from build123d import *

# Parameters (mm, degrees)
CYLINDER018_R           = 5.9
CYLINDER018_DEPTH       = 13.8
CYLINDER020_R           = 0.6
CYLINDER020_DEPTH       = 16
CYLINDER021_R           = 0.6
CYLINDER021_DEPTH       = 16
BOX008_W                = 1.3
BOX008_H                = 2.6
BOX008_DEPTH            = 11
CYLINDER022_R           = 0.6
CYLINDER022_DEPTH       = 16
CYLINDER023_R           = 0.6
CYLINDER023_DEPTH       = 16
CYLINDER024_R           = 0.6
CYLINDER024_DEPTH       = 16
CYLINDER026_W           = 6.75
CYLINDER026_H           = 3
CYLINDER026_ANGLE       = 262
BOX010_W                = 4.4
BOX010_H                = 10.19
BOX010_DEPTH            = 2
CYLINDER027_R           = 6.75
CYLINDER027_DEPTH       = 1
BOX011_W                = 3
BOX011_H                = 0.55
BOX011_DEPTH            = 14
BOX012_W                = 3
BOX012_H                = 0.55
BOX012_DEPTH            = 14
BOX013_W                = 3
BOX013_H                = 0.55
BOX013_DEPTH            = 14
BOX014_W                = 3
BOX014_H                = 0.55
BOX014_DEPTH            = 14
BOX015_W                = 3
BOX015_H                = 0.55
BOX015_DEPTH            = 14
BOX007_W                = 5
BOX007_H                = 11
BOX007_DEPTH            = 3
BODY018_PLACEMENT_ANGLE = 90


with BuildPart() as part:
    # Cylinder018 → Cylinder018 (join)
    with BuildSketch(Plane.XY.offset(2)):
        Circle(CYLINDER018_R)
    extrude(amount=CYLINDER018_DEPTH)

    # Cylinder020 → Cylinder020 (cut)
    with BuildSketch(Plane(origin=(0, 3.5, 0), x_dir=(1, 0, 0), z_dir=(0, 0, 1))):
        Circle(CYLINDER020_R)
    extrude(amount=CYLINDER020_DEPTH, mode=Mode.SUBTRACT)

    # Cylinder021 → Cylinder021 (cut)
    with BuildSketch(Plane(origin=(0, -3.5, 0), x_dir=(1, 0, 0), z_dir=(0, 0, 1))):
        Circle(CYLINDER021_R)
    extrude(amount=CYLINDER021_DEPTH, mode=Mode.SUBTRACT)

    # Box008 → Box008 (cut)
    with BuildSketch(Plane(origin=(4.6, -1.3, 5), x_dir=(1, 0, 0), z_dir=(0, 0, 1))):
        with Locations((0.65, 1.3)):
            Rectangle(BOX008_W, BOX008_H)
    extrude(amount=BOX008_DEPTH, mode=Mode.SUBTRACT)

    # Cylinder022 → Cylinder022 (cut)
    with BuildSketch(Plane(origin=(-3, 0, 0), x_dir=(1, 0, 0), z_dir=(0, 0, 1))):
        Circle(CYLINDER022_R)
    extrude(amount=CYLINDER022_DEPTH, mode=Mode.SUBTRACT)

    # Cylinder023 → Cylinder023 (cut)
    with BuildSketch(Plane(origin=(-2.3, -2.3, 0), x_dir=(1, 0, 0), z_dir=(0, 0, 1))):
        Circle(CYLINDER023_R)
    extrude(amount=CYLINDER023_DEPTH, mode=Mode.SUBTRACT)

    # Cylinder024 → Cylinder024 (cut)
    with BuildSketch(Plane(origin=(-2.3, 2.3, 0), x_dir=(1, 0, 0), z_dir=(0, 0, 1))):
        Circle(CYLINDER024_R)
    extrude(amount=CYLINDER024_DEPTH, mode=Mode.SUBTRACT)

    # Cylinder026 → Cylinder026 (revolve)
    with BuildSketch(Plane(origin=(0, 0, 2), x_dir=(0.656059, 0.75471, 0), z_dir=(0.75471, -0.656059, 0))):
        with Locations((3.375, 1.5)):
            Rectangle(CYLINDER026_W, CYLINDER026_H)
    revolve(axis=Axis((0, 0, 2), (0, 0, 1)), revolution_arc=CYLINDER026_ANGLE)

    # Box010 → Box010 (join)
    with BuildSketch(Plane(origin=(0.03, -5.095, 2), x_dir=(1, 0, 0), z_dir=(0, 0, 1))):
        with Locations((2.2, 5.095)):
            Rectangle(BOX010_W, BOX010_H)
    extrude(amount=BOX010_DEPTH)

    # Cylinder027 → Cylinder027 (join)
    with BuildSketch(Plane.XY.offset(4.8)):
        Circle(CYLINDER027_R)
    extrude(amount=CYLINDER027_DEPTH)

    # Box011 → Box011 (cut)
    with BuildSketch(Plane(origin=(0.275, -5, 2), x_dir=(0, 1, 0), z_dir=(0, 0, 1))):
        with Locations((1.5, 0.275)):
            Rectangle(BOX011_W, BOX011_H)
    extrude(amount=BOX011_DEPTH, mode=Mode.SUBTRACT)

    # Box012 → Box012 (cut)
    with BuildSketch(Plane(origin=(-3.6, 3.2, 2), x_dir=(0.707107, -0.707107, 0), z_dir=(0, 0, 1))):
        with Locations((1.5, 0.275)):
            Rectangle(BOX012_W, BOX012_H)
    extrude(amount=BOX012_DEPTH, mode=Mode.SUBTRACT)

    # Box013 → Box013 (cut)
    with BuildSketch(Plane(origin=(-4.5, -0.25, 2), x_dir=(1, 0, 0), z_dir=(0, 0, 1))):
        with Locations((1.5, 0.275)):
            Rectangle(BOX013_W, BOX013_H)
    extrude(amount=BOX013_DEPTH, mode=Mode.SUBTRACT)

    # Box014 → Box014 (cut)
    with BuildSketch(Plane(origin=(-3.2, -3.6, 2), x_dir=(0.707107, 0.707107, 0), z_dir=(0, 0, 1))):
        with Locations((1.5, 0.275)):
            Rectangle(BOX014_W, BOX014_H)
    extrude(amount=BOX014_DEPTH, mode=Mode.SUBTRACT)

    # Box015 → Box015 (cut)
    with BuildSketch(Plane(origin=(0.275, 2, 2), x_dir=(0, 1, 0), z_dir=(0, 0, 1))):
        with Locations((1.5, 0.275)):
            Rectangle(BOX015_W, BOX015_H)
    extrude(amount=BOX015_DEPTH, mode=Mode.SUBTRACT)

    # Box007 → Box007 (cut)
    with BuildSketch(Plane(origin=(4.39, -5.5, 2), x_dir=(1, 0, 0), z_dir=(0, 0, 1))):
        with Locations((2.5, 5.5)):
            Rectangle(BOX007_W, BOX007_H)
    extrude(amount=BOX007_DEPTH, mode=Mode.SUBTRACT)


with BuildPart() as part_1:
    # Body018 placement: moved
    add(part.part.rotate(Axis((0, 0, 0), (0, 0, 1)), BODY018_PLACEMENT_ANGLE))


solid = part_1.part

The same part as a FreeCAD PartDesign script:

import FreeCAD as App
import Part
import Sketcher

V = App.Vector
Q = App.Units.Quantity


def add_polygon(sketch, points):
    """Adds a closed chain of lines whose ends are joined by coincident constraints."""
    first, n = sketch.GeometryCount, len(points)
    for a, b in zip(points, points[1:] + points[:1]):
        sketch.addGeometry(Part.LineSegment(App.Vector(*a, 0), App.Vector(*b, 0)), False)
    for i in range(n):
        sketch.addConstraint(Sketcher.Constraint("Coincident", first + i, 2, first + (i + 1) % n, 1))

doc = App.newDocument("Part")
body = doc.addObject("PartDesign::Body", "Body")

sketch1 = body.newObject("Sketcher::SketchObject", "Sketch")
sketch1.AttachmentSupport = (doc.getObject("XY_Plane"), [""])
sketch1.MapMode = "FlatFace"
sketch1.AttachmentOffset = App.Placement(V(0, 0, 2), App.Rotation())
sketch1.addGeometry(Part.Circle(V(0, 0, 0), V(0, 0, 1), 6), False)
sketch1.addConstraint(Sketcher.Constraint("Coincident", 0, 3, -1, 1))
sketch1.addConstraint(Sketcher.Constraint("Diameter", 0, 11.8))
pad1 = body.newObject("PartDesign::Pad", "Pad")
pad1.Profile = sketch1
pad1.Length = 13.8

sketch2 = body.newObject("Sketcher::SketchObject", "Sketch001")
sketch2.AttachmentSupport = (doc.getObject("XY_Plane"), [""])
sketch2.MapMode = "FlatFace"
sketch2.addGeometry(Part.Circle(V(0, 3.5, 0), V(0, 0, 1), 0.6), False)
sketch2.addConstraint(Sketcher.Constraint("PointOnObject", 0, 3, -2))
sketch2.addConstraint(Sketcher.Constraint("Diameter", 0, 1.2))
sketch2.addConstraint(Sketcher.Constraint("DistanceY", -1, 1, 0, 3, 3.5))
pocket1 = body.newObject("PartDesign::Pocket", "Pocket")
pocket1.Profile = sketch2
pocket1.Length = 16
pocket1.Reversed = True

sketch3 = body.newObject("Sketcher::SketchObject", "Sketch002")
sketch3.AttachmentSupport = (doc.getObject("XY_Plane"), [""])
sketch3.MapMode = "FlatFace"
sketch3.addGeometry(Part.Circle(V(0, -3.5, 0), V(0, 0, 1), 0.6), False)
sketch3.addConstraint(Sketcher.Constraint("PointOnObject", 0, 3, -2))
sketch3.addConstraint(Sketcher.Constraint("Diameter", 0, 1.2))
sketch3.addConstraint(Sketcher.Constraint("DistanceY", 0, 3, -1, 1, 3.5))
pocket2 = body.newObject("PartDesign::Pocket", "Pocket001")
pocket2.Profile = sketch3
pocket2.Length = 16
pocket2.Reversed = True

sketch4 = body.newObject("Sketcher::SketchObject", "Sketch003")
sketch4.AttachmentSupport = (doc.getObject("XY_Plane"), [""])
sketch4.MapMode = "FlatFace"
sketch4.AttachmentOffset = App.Placement(V(0, 0, 5), App.Rotation())
add_polygon(sketch4, [(4.6, 1.3), (4.6, -1.3), (5.9, -1.3), (5.9, 1.3)])
sketch4.addConstraint(Sketcher.Constraint("Vertical", 0))
sketch4.addConstraint(Sketcher.Constraint("Horizontal", 1))
sketch4.addConstraint(Sketcher.Constraint("Vertical", 2))
sketch4.addConstraint(Sketcher.Constraint("Horizontal", 3))
sketch4.addConstraint(Sketcher.Constraint("DistanceX", 1, 1, 1, 2, 1.3))
sketch4.addConstraint(Sketcher.Constraint("DistanceY", 0, 2, 0, 1, 2.6))
sketch4.addConstraint(Sketcher.Constraint("DistanceX", -1, 1, 0, 2, 4.6))
sketch4.addConstraint(Sketcher.Constraint("DistanceY", 0, 2, -1, 1, 1.3))
pocket3 = body.newObject("PartDesign::Pocket", "Pocket002")
pocket3.Profile = sketch4
pocket3.Length = 11
pocket3.Reversed = True

sketch5 = body.newObject("Sketcher::SketchObject", "Sketch004")
sketch5.AttachmentSupport = (doc.getObject("XY_Plane"), [""])
sketch5.MapMode = "FlatFace"
sketch5.addGeometry(Part.Circle(V(-3, 0, 0), V(0, 0, 1), 0.6), False)
sketch5.addConstraint(Sketcher.Constraint("PointOnObject", 0, 3, -1))
sketch5.addConstraint(Sketcher.Constraint("Diameter", 0, 1.2))
sketch5.addConstraint(Sketcher.Constraint("DistanceX", 0, 3, -1, 1, 3.0))
pocket4 = body.newObject("PartDesign::Pocket", "Pocket003")
pocket4.Profile = sketch5
pocket4.Length = 16
pocket4.Reversed = True

sketch6 = body.newObject("Sketcher::SketchObject", "Sketch005")
sketch6.AttachmentSupport = (doc.getObject("XY_Plane"), [""])
sketch6.MapMode = "FlatFace"
sketch6.addGeometry(Part.Circle(V(-2.3, -2.3, 0), V(0, 0, 1), 0.6), False)
sketch6.addConstraint(Sketcher.Constraint("Diameter", 0, 1.2))
sketch6.addConstraint(Sketcher.Constraint("DistanceX", 0, 3, -1, 1, 2.3))
sketch6.addConstraint(Sketcher.Constraint("DistanceY", 0, 3, -1, 1, 2.3))
pocket5 = body.newObject("PartDesign::Pocket", "Pocket004")
pocket5.Profile = sketch6
pocket5.Length = 16
pocket5.Reversed = True

sketch7 = body.newObject("Sketcher::SketchObject", "Sketch006")
sketch7.AttachmentSupport = (doc.getObject("XY_Plane"), [""])
sketch7.MapMode = "FlatFace"
sketch7.addGeometry(Part.Circle(V(-2.3, 2.3, 0), V(0, 0, 1), 0.6), False)
sketch7.addConstraint(Sketcher.Constraint("Diameter", 0, 1.2))
sketch7.addConstraint(Sketcher.Constraint("DistanceX", 0, 3, -1, 1, 2.3))
sketch7.addConstraint(Sketcher.Constraint("DistanceY", -1, 1, 0, 3, 2.3))
pocket6 = body.newObject("PartDesign::Pocket", "Pocket005")
pocket6.Profile = sketch7
pocket6.Length = 16
pocket6.Reversed = True

sketch8 = body.newObject("Sketcher::SketchObject", "Sketch007")
sketch8.Placement = App.Placement(V(0, 0, 2), App.Rotation(V(0.656058805, 0.754709775, 0), V(0, 0, 1), V(0.754709775, -0.656058805, 0), "ZXY"))
add_polygon(sketch8, [(0, 3), (0, 0), (6.8, 0), (6.8, 3)])
sketch8.addConstraint(Sketcher.Constraint("Vertical", 0))
sketch8.addConstraint(Sketcher.Constraint("Horizontal", 1))
sketch8.addConstraint(Sketcher.Constraint("Vertical", 2))
sketch8.addConstraint(Sketcher.Constraint("Horizontal", 3))
sketch8.addConstraint(Sketcher.Constraint("Coincident", 0, 2, -1, 1))
sketch8.addConstraint(Sketcher.Constraint("DistanceY", 0, 2, 0, 1, 3.0))
sketch8.addConstraint(Sketcher.Constraint("DistanceX", 1, 1, 1, 2, 6.75))
revolution = body.newObject("PartDesign::Revolution", "Revolution")
revolution.Profile = sketch8
revolution.ReferenceAxis = (sketch8, ["V_Axis"])
revolution.Angle = 262

sketch9 = body.newObject("Sketcher::SketchObject", "Sketch008")
sketch9.AttachmentSupport = (doc.getObject("XY_Plane"), [""])
sketch9.MapMode = "FlatFace"
sketch9.AttachmentOffset = App.Placement(V(0, 0, 2), App.Rotation())
add_polygon(sketch9, [(0, 5.1), (0, -5.1), (4.4, -5.1), (4.4, 5.1)])
sketch9.addConstraint(Sketcher.Constraint("Vertical", 0))
sketch9.addConstraint(Sketcher.Constraint("Horizontal", 1))
sketch9.addConstraint(Sketcher.Constraint("Vertical", 2))
sketch9.addConstraint(Sketcher.Constraint("Horizontal", 3))
sketch9.addConstraint(Sketcher.Constraint("DistanceX", 1, 1, 1, 2, 4.4))
sketch9.addConstraint(Sketcher.Constraint("DistanceY", 0, 2, 0, 1, 10.19))
sketch9.addConstraint(Sketcher.Constraint("DistanceX", -1, 1, 0, 2, 0.03))
sketch9.addConstraint(Sketcher.Constraint("DistanceY", 0, 2, -1, 1, 5.095))
pad2 = body.newObject("PartDesign::Pad", "Pad001")
pad2.Profile = sketch9
pad2.Length = 2

sketch10 = body.newObject("Sketcher::SketchObject", "Sketch009")
sketch10.AttachmentSupport = (doc.getObject("XY_Plane"), [""])
sketch10.MapMode = "FlatFace"
sketch10.AttachmentOffset = App.Placement(V(0, 0, 4.8), App.Rotation())
sketch10.addGeometry(Part.Circle(V(0, 0, 0), V(0, 0, 1), 7), False)
sketch10.addConstraint(Sketcher.Constraint("Coincident", 0, 3, -1, 1))
sketch10.addConstraint(Sketcher.Constraint("Diameter", 0, 13.5))
pad3 = body.newObject("PartDesign::Pad", "Pad002")
pad3.Profile = sketch10
pad3.Length = 1

sketch11 = body.newObject("Sketcher::SketchObject", "Sketch010")
sketch11.AttachmentSupport = (doc.getObject("XY_Plane"), [""])
sketch11.MapMode = "FlatFace"
sketch11.AttachmentOffset = App.Placement(V(0, 0, 2), App.Rotation())
add_polygon(sketch11, [(-0.3, -5), (0.3, -5), (0.3, -2), (-0.3, -2)])
sketch11.addConstraint(Sketcher.Constraint("Horizontal", 0))
sketch11.addConstraint(Sketcher.Constraint("Vertical", 1))
sketch11.addConstraint(Sketcher.Constraint("Horizontal", 2))
sketch11.addConstraint(Sketcher.Constraint("Vertical", 3))
sketch11.addConstraint(Sketcher.Constraint("DistanceY", 1, 1, 1, 2, 3.0))
sketch11.addConstraint(Sketcher.Constraint("DistanceY", 0, 2, -1, 1, 5.0))
sketch11.addConstraint(Sketcher.Constraint("DistanceX", 0, 1, 0, 2, 0.55))
sketch11.addConstraint(Sketcher.Constraint("DistanceX", -1, 1, 0, 2, 0.275))
pocket7 = body.newObject("PartDesign::Pocket", "Pocket006")
pocket7.Profile = sketch11
pocket7.Length = 14
pocket7.Reversed = True

sketch12 = body.newObject("Sketcher::SketchObject", "Sketch011")
sketch12.AttachmentSupport = (doc.getObject("XY_Plane"), [""])
sketch12.MapMode = "FlatFace"
sketch12.AttachmentOffset = App.Placement(V(0, 0, 2), App.Rotation())
add_polygon(sketch12, [(-3.2, 3.6), (-3.6, 3.2), (-1.5, 1.1), (-1.1, 1.5)])
sketch12.addConstraint(Sketcher.Constraint("Perpendicular", 0, 1))
sketch12.addConstraint(Sketcher.Constraint("Perpendicular", 1, 2))
sketch12.addConstraint(Sketcher.Constraint("Perpendicular", 2, 3))
sketch12.addConstraint(Sketcher.Constraint("Angle", 0, Q("-135 deg")))
sketch12.addConstraint(Sketcher.Constraint("Distance", 1, 3.0))
sketch12.addConstraint(Sketcher.Constraint("DistanceX", 0, 2, -1, 1, 3.6))
sketch12.addConstraint(Sketcher.Constraint("DistanceY", -1, 1, 0, 2, 3.2))
sketch12.addConstraint(Sketcher.Constraint("Distance", 0, 0.55))
pocket8 = body.newObject("PartDesign::Pocket", "Pocket007")
pocket8.Profile = sketch12
pocket8.Length = 14
pocket8.Reversed = True

sketch13 = body.newObject("Sketcher::SketchObject", "Sketch012")
sketch13.AttachmentSupport = (doc.getObject("XY_Plane"), [""])
sketch13.MapMode = "FlatFace"
sketch13.AttachmentOffset = App.Placement(V(0, 0, 2), App.Rotation())
add_polygon(sketch13, [(-4.5, 0.3), (-4.5, -0.2), (-1.5, -0.2), (-1.5, 0.3)])
sketch13.addConstraint(Sketcher.Constraint("Vertical", 0))
sketch13.addConstraint(Sketcher.Constraint("Horizontal", 1))
sketch13.addConstraint(Sketcher.Constraint("Vertical", 2))
sketch13.addConstraint(Sketcher.Constraint("Horizontal", 3))
sketch13.addConstraint(Sketcher.Constraint("DistanceX", 1, 1, 1, 2, 3.0))
sketch13.addConstraint(Sketcher.Constraint("DistanceY", 0, 2, 0, 1, 0.55))
sketch13.addConstraint(Sketcher.Constraint("DistanceX", 0, 2, -1, 1, 4.5))
sketch13.addConstraint(Sketcher.Constraint("DistanceY", -1, 1, 2, 2, 0.3))
pocket9 = body.newObject("PartDesign::Pocket", "Pocket008")
pocket9.Profile = sketch13
pocket9.Length = 14
pocket9.Reversed = True

sketch14 = body.newObject("Sketcher::SketchObject", "Sketch013")
sketch14.AttachmentSupport = (doc.getObject("XY_Plane"), [""])
sketch14.MapMode = "FlatFace"
sketch14.AttachmentOffset = App.Placement(V(0, 0, 2), App.Rotation())
add_polygon(sketch14, [(-3.6, -3.2), (-3.2, -3.6), (-1.1, -1.5), (-1.5, -1.1)])
sketch14.addConstraint(Sketcher.Constraint("Perpendicular", 0, 1))
sketch14.addConstraint(Sketcher.Constraint("Perpendicular", 1, 2))
sketch14.addConstraint(Sketcher.Constraint("Perpendicular", 2, 3))
sketch14.addConstraint(Sketcher.Constraint("Angle", 0, Q("-45 deg")))
sketch14.addConstraint(Sketcher.Constraint("Distance", 1, 3.0))
sketch14.addConstraint(Sketcher.Constraint("DistanceX", 0, 2, -1, 1, 3.2))
sketch14.addConstraint(Sketcher.Constraint("DistanceY", 0, 2, -1, 1, 3.6))
sketch14.addConstraint(Sketcher.Constraint("Distance", 0, 0.55))
pocket10 = body.newObject("PartDesign::Pocket", "Pocket009")
pocket10.Profile = sketch14
pocket10.Length = 14
pocket10.Reversed = True

sketch15 = body.newObject("Sketcher::SketchObject", "Sketch014")
sketch15.AttachmentSupport = (doc.getObject("XY_Plane"), [""])
sketch15.MapMode = "FlatFace"
sketch15.AttachmentOffset = App.Placement(V(0, 0, 2), App.Rotation())
add_polygon(sketch15, [(-0.3, 2), (0.3, 2), (0.3, 5), (-0.3, 5)])
sketch15.addConstraint(Sketcher.Constraint("Horizontal", 0))
sketch15.addConstraint(Sketcher.Constraint("Vertical", 1))
sketch15.addConstraint(Sketcher.Constraint("Horizontal", 2))
sketch15.addConstraint(Sketcher.Constraint("Vertical", 3))
sketch15.addConstraint(Sketcher.Constraint("DistanceY", 1, 1, 1, 2, 3.0))
sketch15.addConstraint(Sketcher.Constraint("DistanceY", -1, 1, 0, 2, 2.0))
sketch15.addConstraint(Sketcher.Constraint("DistanceX", 0, 1, 0, 2, 0.55))
sketch15.addConstraint(Sketcher.Constraint("DistanceX", -1, 1, 0, 2, 0.275))
pocket11 = body.newObject("PartDesign::Pocket", "Pocket010")
pocket11.Profile = sketch15
pocket11.Length = 14
pocket11.Reversed = True

sketch16 = body.newObject("Sketcher::SketchObject", "Sketch015")
sketch16.AttachmentSupport = (doc.getObject("XY_Plane"), [""])
sketch16.MapMode = "FlatFace"
sketch16.AttachmentOffset = App.Placement(V(0, 0, 2), App.Rotation())
add_polygon(sketch16, [(4, 6), (4, -6), (9, -6), (9, 6)])
sketch16.addConstraint(Sketcher.Constraint("Vertical", 0))
sketch16.addConstraint(Sketcher.Constraint("Horizontal", 1))
sketch16.addConstraint(Sketcher.Constraint("Vertical", 2))
sketch16.addConstraint(Sketcher.Constraint("Horizontal", 3))
sketch16.addConstraint(Sketcher.Constraint("DistanceX", 1, 1, 1, 2, 5.0))
sketch16.addConstraint(Sketcher.Constraint("DistanceY", 0, 2, 0, 1, 11.0))
sketch16.addConstraint(Sketcher.Constraint("DistanceY", 0, 2, -1, 1, 5.5))
sketch16.addConstraint(Sketcher.Constraint("DistanceX", -1, 1, 0, 2, 4.39))
pocket12 = body.newObject("PartDesign::Pocket", "Pocket011")
pocket12.Profile = sketch16
pocket12.Length = 3
pocket12.Reversed = True
body2 = doc.addObject("PartDesign::Body", "Body001")
doc.recompute()

body.Placement = App.Placement(V(0, 0, 0), App.Rotation(V(0, 0, 1), 90))
boolean = body2.newObject("PartDesign::Boolean", "Boolean")
boolean.Type = "Fuse"
boolean.addObjects([body])

doc.recompute()
